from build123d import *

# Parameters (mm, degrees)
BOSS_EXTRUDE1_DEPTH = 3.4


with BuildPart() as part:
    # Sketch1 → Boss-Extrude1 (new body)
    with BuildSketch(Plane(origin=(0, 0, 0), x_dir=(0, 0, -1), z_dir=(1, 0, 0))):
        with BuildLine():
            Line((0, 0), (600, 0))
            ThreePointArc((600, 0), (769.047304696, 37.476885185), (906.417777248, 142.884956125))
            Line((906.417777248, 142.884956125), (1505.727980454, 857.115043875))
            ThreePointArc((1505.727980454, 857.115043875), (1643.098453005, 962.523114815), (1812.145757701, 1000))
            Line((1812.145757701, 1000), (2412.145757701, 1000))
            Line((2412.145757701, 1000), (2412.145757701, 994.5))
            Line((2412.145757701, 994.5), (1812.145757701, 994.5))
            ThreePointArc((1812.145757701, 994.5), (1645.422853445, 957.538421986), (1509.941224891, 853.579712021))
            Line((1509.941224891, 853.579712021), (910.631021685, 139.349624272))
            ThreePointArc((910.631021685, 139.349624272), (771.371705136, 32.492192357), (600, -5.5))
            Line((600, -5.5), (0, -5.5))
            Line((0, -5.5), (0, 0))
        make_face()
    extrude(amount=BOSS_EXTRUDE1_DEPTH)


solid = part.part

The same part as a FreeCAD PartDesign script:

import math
import FreeCAD as App
import Part
import Sketcher
from FreeCAD import Vector
Q = App.Units.Quantity

doc = App.newDocument("Part")
body = doc.addObject("PartDesign::Body", "Body")

# Sketch on YZ plane
sketch1 = doc.addObject("Sketcher::SketchObject", "Sketch")
body.addObject(sketch1)
sketch1.AttachmentSupport = (doc.YZ_Plane, [""])
sketch1.MapMode = "FlatFace"
sketch1.addGeometry(Part.LineSegment(Vector(0, -600, 0), Vector(0, 0, 0)), False)
sketch1.addGeometry(Part.LineSegment(Vector(0, 0, 0), Vector(-6, 0, 0)), False)
sketch1.addGeometry(Part.LineSegment(Vector(-6, 0, 0), Vector(-6, -600, 0)), False)
sketch1.addGeometry(Part.ArcOfCircle(Part.Circle(Vector(400, -600, 0), Vector(0, 0, 1), 406), math.radians(-180), math.radians(-130)), False)
sketch1.addGeometry(Part.LineSegment(Vector(139, -911, 0), Vector(854, -1510, 0)), False)
sketch1.addGeometry(Part.ArcOfCircle(Part.Circle(Vector(600, -1812, 0), Vector(0, 0, 1), 394), math.radians(0), math.radians(50)), False)
sketch1.addGeometry(Part.LineSegment(Vector(994, -1812, 0), Vector(994, -2412, 0)), False)
sketch1.addGeometry(Part.LineSegment(Vector(994, -2412, 0), Vector(1000, -2412, 0)), False)
sketch1.addGeometry(Part.LineSegment(Vector(1000, -2412, 0), Vector(1000, -1812, 0)), False)
sketch1.addGeometry(Part.ArcOfCircle(Part.Circle(Vector(600, -1812, 0), Vector(0, 0, 1), 400), math.radians(0), math.radians(50)), False)
sketch1.addGeometry(Part.LineSegment(Vector(857, -1506, 0), Vector(143, -906, 0)), False)
sketch1.addGeometry(Part.ArcOfCircle(Part.Circle(Vector(400, -600, 0), Vector(0, 0, 1), 400), math.radians(180), math.radians(230)), False)
sketch1.addConstraint(Sketcher.Constraint("Coincident", 0, 2, 1, 1))
sketch1.addConstraint(Sketcher.Constraint("Coincident", 1, 2, 2, 1))
sketch1.addConstraint(Sketcher.Constraint("Tangent", 2, 2, 3, 1))
sketch1.addConstraint(Sketcher.Constraint("Tangent", 3, 2, 4, 1))
sketch1.addConstraint(Sketcher.Constraint("Tangent", 4, 2, 5, 2))
sketch1.addConstraint(Sketcher.Constraint("Tangent", 5, 1, 6, 1))
sketch1.addConstraint(Sketcher.Constraint("Coincident", 6, 2, 7, 1))
sketch1.addConstraint(Sketcher.Constraint("Coincident", 7, 2, 8, 1))
sketch1.addConstraint(Sketcher.Constraint("Tangent", 8, 2, 9, 1))
sketch1.addConstraint(Sketcher.Constraint("Tangent", 9, 2, 10, 1))
sketch1.addConstraint(Sketcher.Constraint("Tangent", 10, 2, 11, 2))
sketch1.addConstraint(Sketcher.Constraint("Tangent", 11, 1, 0, 1))
sketch1.addConstraint(Sketcher.Constraint("Vertical", 0))
sketch1.addConstraint(Sketcher.Constraint("Horizontal", 1))
sketch1.addConstraint(Sketcher.Constraint("Vertical", 2))
sketch1.addConstraint(Sketcher.Constraint("Vertical", 6))
sketch1.addConstraint(Sketcher.Constraint("Horizontal", 7))
sketch1.addConstraint(Sketcher.Constraint("Vertical", 8))
sketch1.addConstraint(Sketcher.Constraint("Coincident", 0, 2, -1, 1))
sketch1.addConstraint(Sketcher.Constraint("Coincident", 9, 3, 5, 3))
sketch1.addConstraint(Sketcher.Constraint("Coincident", 11, 3, 3, 3))
sketch1.addConstraint(Sketcher.Constraint("Equal", 9, 11))
sketch1.addConstraint(Sketcher.Constraint("Parallel", 4, 10))
sketch1.addConstraint(Sketcher.Constraint("Equal", 2, 6))
sketch1.addConstraint(Sketcher.Constraint("Radius", 9, Q("400 mm")))
sketch1.addConstraint(Sketcher.Constraint("Radius", 3, Q("405.5 mm")))
sketch1.addConstraint(Sketcher.Constraint("DistanceY", 0, 1, 0, 2, Q("600 mm")))
sketch1.addConstraint(Sketcher.Constraint("Angle", 4, Q("-40 deg")))
sketch1.addConstraint(Sketcher.Constraint("DistanceX", -1, 1, 5, 3, Q("600 mm")))
pad1 = doc.addObject("PartDesign::Pad", "Pad")
body.addObject(pad1)
pad1.Profile = sketch1
pad1.Length = 3.4

doc.recompute()
